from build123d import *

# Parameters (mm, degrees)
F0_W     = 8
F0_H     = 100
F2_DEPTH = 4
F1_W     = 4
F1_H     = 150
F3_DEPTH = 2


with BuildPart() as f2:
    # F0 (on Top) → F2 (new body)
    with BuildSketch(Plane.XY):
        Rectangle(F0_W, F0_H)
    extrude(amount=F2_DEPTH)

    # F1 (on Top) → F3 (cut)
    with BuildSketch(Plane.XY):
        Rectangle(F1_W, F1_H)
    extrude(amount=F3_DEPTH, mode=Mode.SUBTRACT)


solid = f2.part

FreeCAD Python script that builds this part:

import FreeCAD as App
import Part
import Sketcher
from FreeCAD import Vector

doc = App.newDocument("Part")
body = doc.addObject("PartDesign::Body", "Body")

# Sketch on XY plane
sketch1 = body.newObject("Sketcher::SketchObject", "Sketch")
sketch1.AttachmentSupport = (doc.getObject("XY_Plane"), [""])
sketch1.MapMode = "FlatFace"
sketch1.addGeometry([
    Part.LineSegment(Vector(-4, 50, 0), Vector(-4, -50, 0)),
    Part.LineSegment(Vector(-4, -50, 0), Vector(4, -50, 0)),
    Part.LineSegment(Vector(4, -50, 0), Vector(4, 50, 0)),
    Part.LineSegment(Vector(4, 50, 0), Vector(-4, 50, 0)),
], False)
sketch1.addConstraint([
    Sketcher.Constraint("Coincident", 0, 2, 1, 1),
    Sketcher.Constraint("Coincident", 1, 2, 2, 1),
    Sketcher.Constraint("Coincident", 2, 2, 3, 1),
    Sketcher.Constraint("Coincident", 3, 2, 0, 1),
    Sketcher.Constraint("Vertical", 0),
    Sketcher.Constraint("Horizontal", 1),
    Sketcher.Constraint("Vertical", 2),
    Sketcher.Constraint("Horizontal", 3),
    Sketcher.Constraint("Symmetric", 0, 2, 2, 2, -1, 1),
    Sketcher.Constraint("DistanceX", 1, 1, 1, 2, 8.0),
    Sketcher.Constraint("DistanceY", 0, 2, 0, 1, 100.0),
])
pad1 = body.newObject("PartDesign::Pad", "Pad")
pad1.Profile = sketch1
pad1.Length = 4

# Sketch on XY plane
sketch2 = body.newObject("Sketcher::SketchObject", "Sketch001")
sketch2.AttachmentSupport = (doc.getObject("XY_Plane"), [""])
sketch2.MapMode = "FlatFace"
sketch2.addGeometry([
    Part.LineSegment(Vector(-2, 75, 0), Vector(-2, -75, 0)),
    Part.LineSegment(Vector(-2, -75, 0), Vector(2, -75, 0)),
    Part.LineSegment(Vector(2, -75, 0), Vector(2, 75, 0)),
    Part.LineSegment(Vector(2, 75, 0), Vector(-2, 75, 0)),
], False)
sketch2.addConstraint([
    Sketcher.Constraint("Coincident", 0, 2, 1, 1),
    Sketcher.Constraint("Coincident", 1, 2, 2, 1),
    Sketcher.Constraint("Coincident", 2, 2, 3, 1),
    Sketcher.Constraint("Coincident", 3, 2, 0, 1),
    Sketcher.Constraint("Vertical", 0),
    Sketcher.Constraint("Horizontal", 1),
    Sketcher.Constraint("Vertical", 2),
    Sketcher.Constraint("Horizontal", 3),
    Sketcher.Constraint("Symmetric", 0, 2, 2, 2, -1, 1),
    Sketcher.Constraint("DistanceX", 1, 1, 1, 2, 4.0),
    Sketcher.Constraint("DistanceY", 0, 2, 0, 1, 150.0),
])
pocket1 = body.newObject("PartDesign::Pocket", "Pocket")
pocket1.Profile = sketch2
pocket1.Length = 2
pocket1.Reversed = True

doc.recompute()
